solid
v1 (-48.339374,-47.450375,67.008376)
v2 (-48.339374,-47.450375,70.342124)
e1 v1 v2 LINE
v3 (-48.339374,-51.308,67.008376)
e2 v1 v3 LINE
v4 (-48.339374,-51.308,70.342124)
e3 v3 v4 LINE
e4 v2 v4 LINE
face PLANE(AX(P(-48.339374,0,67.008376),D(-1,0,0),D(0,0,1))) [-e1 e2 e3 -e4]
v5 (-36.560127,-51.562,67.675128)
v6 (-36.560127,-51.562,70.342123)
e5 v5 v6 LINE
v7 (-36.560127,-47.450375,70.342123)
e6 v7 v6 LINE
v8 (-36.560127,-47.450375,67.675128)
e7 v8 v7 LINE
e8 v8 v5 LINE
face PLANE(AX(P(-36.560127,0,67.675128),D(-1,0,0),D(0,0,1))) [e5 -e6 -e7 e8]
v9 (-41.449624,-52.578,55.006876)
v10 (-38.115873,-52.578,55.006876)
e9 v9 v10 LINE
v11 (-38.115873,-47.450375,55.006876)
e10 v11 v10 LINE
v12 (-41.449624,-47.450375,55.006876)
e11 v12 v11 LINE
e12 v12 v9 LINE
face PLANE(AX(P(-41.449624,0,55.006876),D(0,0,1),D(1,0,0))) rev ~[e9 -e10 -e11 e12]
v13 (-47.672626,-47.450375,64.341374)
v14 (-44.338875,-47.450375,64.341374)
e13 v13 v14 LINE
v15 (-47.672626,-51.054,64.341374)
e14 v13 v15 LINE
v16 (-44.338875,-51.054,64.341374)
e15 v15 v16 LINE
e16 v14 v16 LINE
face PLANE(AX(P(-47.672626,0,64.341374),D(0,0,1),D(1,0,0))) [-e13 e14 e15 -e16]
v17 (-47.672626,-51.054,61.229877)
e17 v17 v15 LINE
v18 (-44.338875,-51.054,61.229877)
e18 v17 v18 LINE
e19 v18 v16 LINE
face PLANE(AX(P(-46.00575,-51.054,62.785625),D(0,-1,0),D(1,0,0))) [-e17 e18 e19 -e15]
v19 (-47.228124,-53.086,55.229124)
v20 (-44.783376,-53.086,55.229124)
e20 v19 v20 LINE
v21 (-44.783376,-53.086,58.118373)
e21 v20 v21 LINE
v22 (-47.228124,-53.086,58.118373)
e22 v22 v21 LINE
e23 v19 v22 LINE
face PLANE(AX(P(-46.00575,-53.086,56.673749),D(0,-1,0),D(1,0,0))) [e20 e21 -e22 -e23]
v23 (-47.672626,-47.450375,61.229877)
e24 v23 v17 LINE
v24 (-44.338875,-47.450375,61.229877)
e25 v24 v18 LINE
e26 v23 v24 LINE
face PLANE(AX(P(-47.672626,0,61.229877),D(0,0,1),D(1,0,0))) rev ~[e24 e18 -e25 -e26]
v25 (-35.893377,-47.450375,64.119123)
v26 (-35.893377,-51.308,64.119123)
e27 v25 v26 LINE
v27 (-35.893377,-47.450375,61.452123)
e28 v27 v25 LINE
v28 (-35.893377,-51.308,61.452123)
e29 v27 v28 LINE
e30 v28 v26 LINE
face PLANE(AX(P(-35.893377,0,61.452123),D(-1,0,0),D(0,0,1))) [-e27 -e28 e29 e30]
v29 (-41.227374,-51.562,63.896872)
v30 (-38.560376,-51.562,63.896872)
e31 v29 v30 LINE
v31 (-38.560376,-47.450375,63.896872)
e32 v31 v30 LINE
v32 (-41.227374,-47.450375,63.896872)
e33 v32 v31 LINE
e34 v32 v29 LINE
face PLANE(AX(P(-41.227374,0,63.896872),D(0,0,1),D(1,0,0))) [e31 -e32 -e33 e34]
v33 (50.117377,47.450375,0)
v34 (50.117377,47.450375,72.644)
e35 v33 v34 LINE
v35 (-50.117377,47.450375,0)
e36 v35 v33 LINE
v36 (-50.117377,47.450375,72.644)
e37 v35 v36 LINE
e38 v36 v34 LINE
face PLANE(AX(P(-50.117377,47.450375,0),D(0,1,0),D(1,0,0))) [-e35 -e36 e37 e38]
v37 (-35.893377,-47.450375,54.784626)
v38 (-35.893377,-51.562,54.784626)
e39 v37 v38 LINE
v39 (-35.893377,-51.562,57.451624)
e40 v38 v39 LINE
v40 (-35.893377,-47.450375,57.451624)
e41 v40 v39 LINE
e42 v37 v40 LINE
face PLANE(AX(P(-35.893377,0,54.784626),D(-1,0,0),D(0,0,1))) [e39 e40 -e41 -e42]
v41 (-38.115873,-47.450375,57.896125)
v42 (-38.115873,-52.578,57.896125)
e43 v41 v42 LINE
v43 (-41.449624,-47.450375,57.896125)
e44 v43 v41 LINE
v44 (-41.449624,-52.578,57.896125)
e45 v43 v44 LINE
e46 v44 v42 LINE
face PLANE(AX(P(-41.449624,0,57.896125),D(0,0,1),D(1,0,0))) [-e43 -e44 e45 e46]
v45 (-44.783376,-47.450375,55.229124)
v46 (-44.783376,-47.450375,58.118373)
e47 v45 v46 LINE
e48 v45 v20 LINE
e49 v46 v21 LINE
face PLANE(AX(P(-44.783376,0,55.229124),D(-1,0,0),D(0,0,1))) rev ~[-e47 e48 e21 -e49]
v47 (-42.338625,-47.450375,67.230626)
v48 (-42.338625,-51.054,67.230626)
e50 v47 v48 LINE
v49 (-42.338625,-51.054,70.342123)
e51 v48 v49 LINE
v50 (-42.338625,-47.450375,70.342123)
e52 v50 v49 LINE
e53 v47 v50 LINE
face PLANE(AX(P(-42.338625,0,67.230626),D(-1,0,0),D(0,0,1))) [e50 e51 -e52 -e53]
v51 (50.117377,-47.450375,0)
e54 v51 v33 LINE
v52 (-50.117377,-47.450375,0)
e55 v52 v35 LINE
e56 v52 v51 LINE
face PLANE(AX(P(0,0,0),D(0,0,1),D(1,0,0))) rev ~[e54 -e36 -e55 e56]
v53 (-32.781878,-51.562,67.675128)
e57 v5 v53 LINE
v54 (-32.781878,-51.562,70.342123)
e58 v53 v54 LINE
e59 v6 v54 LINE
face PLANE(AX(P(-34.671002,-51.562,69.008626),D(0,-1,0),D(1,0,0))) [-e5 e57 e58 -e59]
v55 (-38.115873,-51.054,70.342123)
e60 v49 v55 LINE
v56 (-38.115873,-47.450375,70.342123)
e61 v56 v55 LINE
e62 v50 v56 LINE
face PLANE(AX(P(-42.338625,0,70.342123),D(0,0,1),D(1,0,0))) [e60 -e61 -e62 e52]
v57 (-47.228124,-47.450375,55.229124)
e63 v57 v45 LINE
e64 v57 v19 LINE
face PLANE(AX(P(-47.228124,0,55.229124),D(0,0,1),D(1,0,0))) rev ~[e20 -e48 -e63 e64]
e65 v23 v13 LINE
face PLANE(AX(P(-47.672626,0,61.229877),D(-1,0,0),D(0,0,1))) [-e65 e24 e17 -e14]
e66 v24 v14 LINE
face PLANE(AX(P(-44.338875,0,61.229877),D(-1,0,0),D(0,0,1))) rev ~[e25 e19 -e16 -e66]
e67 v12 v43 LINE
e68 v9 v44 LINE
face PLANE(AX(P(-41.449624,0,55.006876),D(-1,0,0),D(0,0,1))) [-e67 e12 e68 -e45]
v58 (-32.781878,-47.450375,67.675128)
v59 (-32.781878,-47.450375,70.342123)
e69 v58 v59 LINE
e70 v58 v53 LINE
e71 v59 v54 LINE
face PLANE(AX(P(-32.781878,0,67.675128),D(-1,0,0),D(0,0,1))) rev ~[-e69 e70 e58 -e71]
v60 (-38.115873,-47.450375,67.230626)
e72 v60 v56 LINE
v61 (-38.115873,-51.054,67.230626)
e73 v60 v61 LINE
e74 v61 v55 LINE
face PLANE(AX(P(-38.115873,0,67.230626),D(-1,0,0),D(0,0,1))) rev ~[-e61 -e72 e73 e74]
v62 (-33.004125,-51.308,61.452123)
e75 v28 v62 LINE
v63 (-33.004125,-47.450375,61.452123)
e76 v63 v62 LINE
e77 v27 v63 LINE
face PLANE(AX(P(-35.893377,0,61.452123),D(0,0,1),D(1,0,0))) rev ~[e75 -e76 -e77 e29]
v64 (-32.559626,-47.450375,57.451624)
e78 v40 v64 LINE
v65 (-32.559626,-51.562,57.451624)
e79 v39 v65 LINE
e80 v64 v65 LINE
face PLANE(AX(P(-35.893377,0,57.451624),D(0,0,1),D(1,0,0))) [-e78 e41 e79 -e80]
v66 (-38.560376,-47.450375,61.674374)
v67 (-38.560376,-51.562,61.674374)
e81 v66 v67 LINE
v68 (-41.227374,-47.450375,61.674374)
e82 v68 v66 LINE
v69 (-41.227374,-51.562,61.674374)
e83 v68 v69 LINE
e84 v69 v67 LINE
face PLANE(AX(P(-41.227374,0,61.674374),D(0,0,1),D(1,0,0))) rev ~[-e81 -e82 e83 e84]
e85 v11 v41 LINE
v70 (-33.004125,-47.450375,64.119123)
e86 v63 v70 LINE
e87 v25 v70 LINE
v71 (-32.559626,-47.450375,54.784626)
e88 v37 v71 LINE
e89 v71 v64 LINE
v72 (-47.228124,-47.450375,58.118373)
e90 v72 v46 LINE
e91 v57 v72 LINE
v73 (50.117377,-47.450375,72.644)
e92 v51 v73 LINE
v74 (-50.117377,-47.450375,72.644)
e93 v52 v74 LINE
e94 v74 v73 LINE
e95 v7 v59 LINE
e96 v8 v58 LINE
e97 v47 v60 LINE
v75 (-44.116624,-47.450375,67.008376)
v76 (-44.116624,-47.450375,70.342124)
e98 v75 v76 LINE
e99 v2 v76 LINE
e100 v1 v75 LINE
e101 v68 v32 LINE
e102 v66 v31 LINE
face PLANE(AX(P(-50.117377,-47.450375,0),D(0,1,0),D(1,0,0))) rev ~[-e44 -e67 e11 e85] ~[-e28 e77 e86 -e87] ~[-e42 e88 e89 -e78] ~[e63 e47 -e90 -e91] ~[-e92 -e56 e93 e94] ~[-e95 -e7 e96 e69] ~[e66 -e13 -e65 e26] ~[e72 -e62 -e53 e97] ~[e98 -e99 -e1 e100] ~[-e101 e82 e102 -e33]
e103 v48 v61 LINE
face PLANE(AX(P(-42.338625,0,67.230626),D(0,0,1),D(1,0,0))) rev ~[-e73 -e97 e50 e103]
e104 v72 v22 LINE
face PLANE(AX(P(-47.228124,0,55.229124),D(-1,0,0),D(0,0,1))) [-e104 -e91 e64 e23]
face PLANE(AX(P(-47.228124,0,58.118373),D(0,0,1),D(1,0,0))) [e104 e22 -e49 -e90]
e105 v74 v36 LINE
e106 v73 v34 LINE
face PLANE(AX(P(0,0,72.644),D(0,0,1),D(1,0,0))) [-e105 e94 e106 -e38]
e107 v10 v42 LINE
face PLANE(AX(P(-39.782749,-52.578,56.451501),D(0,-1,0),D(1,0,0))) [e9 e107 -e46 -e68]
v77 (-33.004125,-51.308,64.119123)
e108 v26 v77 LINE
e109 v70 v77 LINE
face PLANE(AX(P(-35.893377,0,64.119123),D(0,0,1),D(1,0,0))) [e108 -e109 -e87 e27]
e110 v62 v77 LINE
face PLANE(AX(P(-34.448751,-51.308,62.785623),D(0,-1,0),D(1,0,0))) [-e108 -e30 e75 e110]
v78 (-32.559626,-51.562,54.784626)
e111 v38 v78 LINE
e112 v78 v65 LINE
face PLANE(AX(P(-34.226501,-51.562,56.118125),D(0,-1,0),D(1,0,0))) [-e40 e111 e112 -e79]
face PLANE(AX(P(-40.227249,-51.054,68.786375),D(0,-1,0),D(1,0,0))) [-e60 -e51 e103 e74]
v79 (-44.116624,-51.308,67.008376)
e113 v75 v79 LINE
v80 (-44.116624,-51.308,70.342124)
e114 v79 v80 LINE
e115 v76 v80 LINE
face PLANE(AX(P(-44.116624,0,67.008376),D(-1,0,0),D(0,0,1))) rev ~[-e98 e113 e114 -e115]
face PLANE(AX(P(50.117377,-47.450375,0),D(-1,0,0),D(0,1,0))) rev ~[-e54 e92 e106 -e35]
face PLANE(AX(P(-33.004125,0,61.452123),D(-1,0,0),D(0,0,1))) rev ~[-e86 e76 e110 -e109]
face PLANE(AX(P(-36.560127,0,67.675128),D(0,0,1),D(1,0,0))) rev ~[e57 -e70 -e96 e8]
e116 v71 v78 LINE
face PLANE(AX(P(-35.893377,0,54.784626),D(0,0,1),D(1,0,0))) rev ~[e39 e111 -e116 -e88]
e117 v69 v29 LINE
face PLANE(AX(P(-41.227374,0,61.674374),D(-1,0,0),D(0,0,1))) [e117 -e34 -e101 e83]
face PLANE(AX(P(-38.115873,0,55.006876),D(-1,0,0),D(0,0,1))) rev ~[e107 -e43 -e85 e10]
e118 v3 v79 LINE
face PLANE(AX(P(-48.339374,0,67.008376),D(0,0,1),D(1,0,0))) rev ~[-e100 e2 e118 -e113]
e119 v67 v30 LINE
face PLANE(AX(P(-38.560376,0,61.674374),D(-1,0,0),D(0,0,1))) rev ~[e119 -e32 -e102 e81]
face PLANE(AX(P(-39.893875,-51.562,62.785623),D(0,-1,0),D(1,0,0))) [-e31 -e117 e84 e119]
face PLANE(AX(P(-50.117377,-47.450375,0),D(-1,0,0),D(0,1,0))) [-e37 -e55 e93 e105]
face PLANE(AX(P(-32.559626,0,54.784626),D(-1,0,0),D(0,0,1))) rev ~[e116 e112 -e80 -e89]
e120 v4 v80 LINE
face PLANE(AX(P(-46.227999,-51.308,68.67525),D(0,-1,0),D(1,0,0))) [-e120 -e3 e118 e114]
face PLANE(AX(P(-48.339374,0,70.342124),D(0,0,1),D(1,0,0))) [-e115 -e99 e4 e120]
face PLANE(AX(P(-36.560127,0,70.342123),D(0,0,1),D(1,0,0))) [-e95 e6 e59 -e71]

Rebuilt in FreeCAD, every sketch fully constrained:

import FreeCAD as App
import Part
import Sketcher
from FreeCAD import Vector
Q = App.Units.Quantity


def add_polygon(sketch, points):
    """Adds a closed chain of lines whose ends are joined by coincident constraints."""
    first, n = sketch.GeometryCount, len(points)
    for a, b in zip(points, points[1:] + points[:1]):
        sketch.addGeometry(Part.LineSegment(App.Vector(*a, 0), App.Vector(*b, 0)), False)
    for i in range(n):
        sketch.addConstraint(Sketcher.Constraint("Coincident", first + i, 2, first + (i + 1) % n, 1))

doc = App.newDocument("Part")
body = doc.addObject("PartDesign::Body", "Body")

sketch1 = body.newObject("Sketcher::SketchObject", "Sketch")
sketch1.AttachmentSupport = (doc.getObject("XY_Plane"), [""])
sketch1.MapMode = "FlatFace"
add_polygon(sketch1, [(-50.117377, 47.450375), (-50.117377, -47.450375), (50.117377, -47.450375), (50.117377, 47.450375)])
sketch1.addConstraint(Sketcher.Constraint("Vertical", 0))
sketch1.addConstraint(Sketcher.Constraint("Horizontal", 1))
sketch1.addConstraint(Sketcher.Constraint("Vertical", 2))
sketch1.addConstraint(Sketcher.Constraint("Horizontal", 3))
sketch1.addConstraint(Sketcher.Constraint("Symmetric", 0, 2, 2, 2, -1, 1))
sketch1.addConstraint(Sketcher.Constraint("DistanceY", 0, 2, 0, 1, 94.90075))
sketch1.addConstraint(Sketcher.Constraint("DistanceX", 1, 1, 1, 2, 100.234754))
pad1 = body.newObject("PartDesign::Pad", "Pad")
pad1.Profile = sketch1
pad1.Length = Q("2.86 in")

sketch2 = body.newObject("Sketcher::SketchObject", "Sketch001")
sketch2.AttachmentSupport = (doc.getObject("XZ_Plane"), [""])
sketch2.MapMode = "FlatFace"
add_polygon(sketch2, [(-48.339374, 70.342124), (-48.339374, 67.008376), (-44.116624, 67.008376), (-44.116624, 70.342124)])
sketch2.addConstraint(Sketcher.Constraint("Vertical", 0))
sketch2.addConstraint(Sketcher.Constraint("Horizontal", 1))
sketch2.addConstraint(Sketcher.Constraint("Vertical", 2))
sketch2.addConstraint(Sketcher.Constraint("Horizontal", 3))
sketch2.addConstraint(Sketcher.Constraint("DistanceX", 1, 1, 1, 2, 4.22275))
sketch2.addConstraint(Sketcher.Constraint("DistanceY", 0, 2, 0, 1, 3.333748))
sketch2.addConstraint(Sketcher.Constraint("DistanceX", 0, 2, -1, 1, 48.339374))
sketch2.addConstraint(Sketcher.Constraint("DistanceY", -1, 1, 0, 2, 67.008376))
pad2 = body.newObject("PartDesign::Pad", "Pad001")
pad2.Profile = sketch2
pad2.Length = Q("2.02 in")

sketch3 = body.newObject("Sketcher::SketchObject", "Sketch002")
sketch3.AttachmentSupport = (doc.getObject("XZ_Plane"), [""])
sketch3.MapMode = "FlatFace"
add_polygon(sketch3, [(-42.338625, 70.342123), (-42.338625, 67.230626), (-38.115873, 67.230626), (-38.115873, 70.342123)])
sketch3.addConstraint(Sketcher.Constraint("Vertical", 0))
sketch3.addConstraint(Sketcher.Constraint("Horizontal", 1))
sketch3.addConstraint(Sketcher.Constraint("Vertical", 2))
sketch3.addConstraint(Sketcher.Constraint("Horizontal", 3))
sketch3.addConstraint(Sketcher.Constraint("DistanceY", 0, 2, 0, 1, Q("0.1224999 in")))
sketch3.addConstraint(Sketcher.Constraint("DistanceX", 1, 1, 1, 2, 4.222751))
sketch3.addConstraint(Sketcher.Constraint("DistanceX", 0, 2, -1, 1, 42.338625))
sketch3.addConstraint(Sketcher.Constraint("DistanceY", -1, 1, 0, 2, 67.230626))
pad3 = body.newObject("PartDesign::Pad", "Pad002")
pad3.Profile = sketch3
pad3.Length = Q("2.01 in")

sketch4 = body.newObject("Sketcher::SketchObject", "Sketch003")
sketch4.AttachmentSupport = (doc.getObject("XZ_Plane"), [""])
sketch4.MapMode = "FlatFace"
add_polygon(sketch4, [(-36.560127, 70.342123), (-36.560127, 67.675128), (-32.781878, 67.675128), (-32.781878, 70.342123)])
sketch4.addConstraint(Sketcher.Constraint("Vertical", 0))
sketch4.addConstraint(Sketcher.Constraint("Horizontal", 1))
sketch4.addConstraint(Sketcher.Constraint("Vertical", 2))
sketch4.addConstraint(Sketcher.Constraint("Horizontal", 3))
sketch4.addConstraint(Sketcher.Constraint("DistanceY", 0, 2, 0, 1, Q("0.1049998 in")))
sketch4.addConstraint(Sketcher.Constraint("DistanceX", 1, 1, 1, 2, 3.778249))
sketch4.addConstraint(Sketcher.Constraint("DistanceY", -1, 1, 0, 2, 67.675128))
sketch4.addConstraint(Sketcher.Constraint("DistanceX", 0, 2, -1, 1, 36.560127))
pad4 = body.newObject("PartDesign::Pad", "Pad003")
pad4.Profile = sketch4
pad4.Length = Q("2.03 in")

sketch5 = body.newObject("Sketcher::SketchObject", "Sketch004")
sketch5.AttachmentSupport = (doc.getObject("XZ_Plane"), [""])
sketch5.MapMode = "FlatFace"
add_polygon(sketch5, [(-47.672626, 64.341374), (-47.672626, 61.229877), (-44.338875, 61.229877), (-44.338875, 64.341374)])
sketch5.addConstraint(Sketcher.Constraint("Vertical", 0))
sketch5.addConstraint(Sketcher.Constraint("Horizontal", 1))
sketch5.addConstraint(Sketcher.Constraint("Vertical", 2))
sketch5.addConstraint(Sketcher.Constraint("Horizontal", 3))
sketch5.addConstraint(Sketcher.Constraint("DistanceY", 0, 2, 0, 1, Q("0.1224999 in")))
sketch5.addConstraint(Sketcher.Constraint("DistanceX", 1, 1, 1, 2, 3.333751))
sketch5.addConstraint(Sketcher.Constraint("DistanceX", 0, 2, -1, 1, 47.672626))
sketch5.addConstraint(Sketcher.Constraint("DistanceY", -1, 1, 0, 2, 61.229877))
pad5 = body.newObject("PartDesign::Pad", "Pad004")
pad5.Profile = sketch5
pad5.Length = Q("2.01 in")

sketch6 = body.newObject("Sketcher::SketchObject", "Sketch005")
sketch6.AttachmentSupport = (doc.getObject("XZ_Plane"), [""])
sketch6.MapMode = "FlatFace"
add_polygon(sketch6, [(-41.227374, 63.896872), (-41.227374, 61.674374), (-38.560376, 61.674374), (-38.560376, 63.896872)])
sketch6.addConstraint(Sketcher.Constraint("Vertical", 0))
sketch6.addConstraint(Sketcher.Constraint("Horizontal", 1))
sketch6.addConstraint(Sketcher.Constraint("Vertical", 2))
sketch6.addConstraint(Sketcher.Constraint("Horizontal", 3))
sketch6.addConstraint(Sketcher.Constraint("DistanceX", 1, 1, 1, 2, Q("0.1049999 in")))
sketch6.addConstraint(Sketcher.Constraint("DistanceY", 0, 2, 0, 1, Q("0.0874999 in")))
sketch6.addConstraint(Sketcher.Constraint("DistanceY", -1, 1, 2, 2, Q("2.5156249 in")))
sketch6.addConstraint(Sketcher.Constraint("DistanceX", 0, 2, -1, 1, 41.227374))
pad6 = body.newObject("PartDesign::Pad", "Pad005")
pad6.Profile = sketch6
pad6.Length = Q("2.03 in")

sketch7 = body.newObject("Sketcher::SketchObject", "Sketch006")
sketch7.AttachmentSupport = (doc.getObject("XZ_Plane"), [""])
sketch7.MapMode = "FlatFace"
add_polygon(sketch7, [(-35.893377, 64.119123), (-35.893377, 61.452123), (-33.004125, 61.452123), (-33.004125, 64.119123)])
sketch7.addConstraint(Sketcher.Constraint("Vertical", 0))
sketch7.addConstraint(Sketcher.Constraint("Horizontal", 1))
sketch7.addConstraint(Sketcher.Constraint("Vertical", 2))
sketch7.addConstraint(Sketcher.Constraint("Horizontal", 3))
sketch7.addConstraint(Sketcher.Constraint("DistanceY", 0, 2, 0, 1, Q("0.105 in")))
sketch7.addConstraint(Sketcher.Constraint("DistanceX", 1, 1, 1, 2, 2.889253))
sketch7.addConstraint(Sketcher.Constraint("DistanceX", 0, 2, -1, 1, 35.893377))
sketch7.addConstraint(Sketcher.Constraint("DistanceY", -1, 1, 0, 2, 61.452123))
pad7 = body.newObject("PartDesign::Pad", "Pad006")
pad7.Profile = sketch7
pad7.Length = Q("2.02 in")

sketch8 = body.newObject("Sketcher::SketchObject", "Sketch007")
sketch8.AttachmentSupport = (doc.getObject("XZ_Plane"), [""])
sketch8.MapMode = "FlatFace"
add_polygon(sketch8, [(-47.228124, 58.118373), (-47.228124, 55.229124), (-44.783376, 55.229124), (-44.783376, 58.118373)])
sketch8.addConstraint(Sketcher.Constraint("Vertical", 0))
sketch8.addConstraint(Sketcher.Constraint("Horizontal", 1))
sketch8.addConstraint(Sketcher.Constraint("Vertical", 2))
sketch8.addConstraint(Sketcher.Constraint("Horizontal", 3))
sketch8.addConstraint(Sketcher.Constraint("DistanceX", 0, 2, -1, 1, Q("1.859375 in")))
sketch8.addConstraint(Sketcher.Constraint("DistanceX", 1, 1, 1, 2, 2.444748))
sketch8.addConstraint(Sketcher.Constraint("DistanceY", 0, 2, 0, 1, 2.889249))
sketch8.addConstraint(Sketcher.Constraint("DistanceY", -1, 1, 0, 2, 55.229124))
pad8 = body.newObject("PartDesign::Pad", "Pad007")
pad8.Profile = sketch8
pad8.Length = Q("2.09 in")

sketch9 = body.newObject("Sketcher::SketchObject", "Sketch008")
sketch9.AttachmentSupport = (doc.getObject("XZ_Plane"), [""])
sketch9.MapMode = "FlatFace"
add_polygon(sketch9, [(-41.449624, 57.896125), (-41.449624, 55.006876), (-38.115873, 55.006876), (-38.115873, 57.896125)])
sketch9.addConstraint(Sketcher.Constraint("Vertical", 0))
sketch9.addConstraint(Sketcher.Constraint("Horizontal", 1))
sketch9.addConstraint(Sketcher.Constraint("Vertical", 2))
sketch9.addConstraint(Sketcher.Constraint("Horizontal", 3))
sketch9.addConstraint(Sketcher.Constraint("DistanceX", 1, 1, 1, 2, 3.333751))
sketch9.addConstraint(Sketcher.Constraint("DistanceY", 0, 2, 0, 1, 2.889249))
sketch9.addConstraint(Sketcher.Constraint("DistanceX", 0, 2, -1, 1, 41.449624))
sketch9.addConstraint(Sketcher.Constraint("DistanceY", -1, 1, 0, 2, 55.006876))
pad9 = body.newObject("PartDesign::Pad", "Pad008")
pad9.Profile = sketch9
pad9.Length = Q("2.07 in")

sketch10 = body.newObject("Sketcher::SketchObject", "Sketch009")
sketch10.AttachmentSupport = (doc.getObject("XZ_Plane"), [""])
sketch10.MapMode = "FlatFace"
add_polygon(sketch10, [(-35.893377, 57.451624), (-35.893377, 54.784626), (-32.559626, 54.784626), (-32.559626, 57.451624)])
sketch10.addConstraint(Sketcher.Constraint("Vertical", 0))
sketch10.addConstraint(Sketcher.Constraint("Horizontal", 1))
sketch10.addConstraint(Sketcher.Constraint("Vertical", 2))
sketch10.addConstraint(Sketcher.Constraint("Horizontal", 3))
sketch10.addConstraint(Sketcher.Constraint("DistanceY", 0, 2, 0, 1, Q("0.1049999 in")))
sketch10.addConstraint(Sketcher.Constraint("DistanceX", 1, 1, 1, 2, 3.333751))
sketch10.addConstraint(Sketcher.Constraint("DistanceX", 0, 2, -1, 1, 35.893377))
sketch10.addConstraint(Sketcher.Constraint("DistanceY", -1, 1, 0, 2, 54.784626))
pad10 = body.newObject("PartDesign::Pad", "Pad009")
pad10.Profile = sketch10
pad10.Length = Q("2.03 in")

doc.recompute()
